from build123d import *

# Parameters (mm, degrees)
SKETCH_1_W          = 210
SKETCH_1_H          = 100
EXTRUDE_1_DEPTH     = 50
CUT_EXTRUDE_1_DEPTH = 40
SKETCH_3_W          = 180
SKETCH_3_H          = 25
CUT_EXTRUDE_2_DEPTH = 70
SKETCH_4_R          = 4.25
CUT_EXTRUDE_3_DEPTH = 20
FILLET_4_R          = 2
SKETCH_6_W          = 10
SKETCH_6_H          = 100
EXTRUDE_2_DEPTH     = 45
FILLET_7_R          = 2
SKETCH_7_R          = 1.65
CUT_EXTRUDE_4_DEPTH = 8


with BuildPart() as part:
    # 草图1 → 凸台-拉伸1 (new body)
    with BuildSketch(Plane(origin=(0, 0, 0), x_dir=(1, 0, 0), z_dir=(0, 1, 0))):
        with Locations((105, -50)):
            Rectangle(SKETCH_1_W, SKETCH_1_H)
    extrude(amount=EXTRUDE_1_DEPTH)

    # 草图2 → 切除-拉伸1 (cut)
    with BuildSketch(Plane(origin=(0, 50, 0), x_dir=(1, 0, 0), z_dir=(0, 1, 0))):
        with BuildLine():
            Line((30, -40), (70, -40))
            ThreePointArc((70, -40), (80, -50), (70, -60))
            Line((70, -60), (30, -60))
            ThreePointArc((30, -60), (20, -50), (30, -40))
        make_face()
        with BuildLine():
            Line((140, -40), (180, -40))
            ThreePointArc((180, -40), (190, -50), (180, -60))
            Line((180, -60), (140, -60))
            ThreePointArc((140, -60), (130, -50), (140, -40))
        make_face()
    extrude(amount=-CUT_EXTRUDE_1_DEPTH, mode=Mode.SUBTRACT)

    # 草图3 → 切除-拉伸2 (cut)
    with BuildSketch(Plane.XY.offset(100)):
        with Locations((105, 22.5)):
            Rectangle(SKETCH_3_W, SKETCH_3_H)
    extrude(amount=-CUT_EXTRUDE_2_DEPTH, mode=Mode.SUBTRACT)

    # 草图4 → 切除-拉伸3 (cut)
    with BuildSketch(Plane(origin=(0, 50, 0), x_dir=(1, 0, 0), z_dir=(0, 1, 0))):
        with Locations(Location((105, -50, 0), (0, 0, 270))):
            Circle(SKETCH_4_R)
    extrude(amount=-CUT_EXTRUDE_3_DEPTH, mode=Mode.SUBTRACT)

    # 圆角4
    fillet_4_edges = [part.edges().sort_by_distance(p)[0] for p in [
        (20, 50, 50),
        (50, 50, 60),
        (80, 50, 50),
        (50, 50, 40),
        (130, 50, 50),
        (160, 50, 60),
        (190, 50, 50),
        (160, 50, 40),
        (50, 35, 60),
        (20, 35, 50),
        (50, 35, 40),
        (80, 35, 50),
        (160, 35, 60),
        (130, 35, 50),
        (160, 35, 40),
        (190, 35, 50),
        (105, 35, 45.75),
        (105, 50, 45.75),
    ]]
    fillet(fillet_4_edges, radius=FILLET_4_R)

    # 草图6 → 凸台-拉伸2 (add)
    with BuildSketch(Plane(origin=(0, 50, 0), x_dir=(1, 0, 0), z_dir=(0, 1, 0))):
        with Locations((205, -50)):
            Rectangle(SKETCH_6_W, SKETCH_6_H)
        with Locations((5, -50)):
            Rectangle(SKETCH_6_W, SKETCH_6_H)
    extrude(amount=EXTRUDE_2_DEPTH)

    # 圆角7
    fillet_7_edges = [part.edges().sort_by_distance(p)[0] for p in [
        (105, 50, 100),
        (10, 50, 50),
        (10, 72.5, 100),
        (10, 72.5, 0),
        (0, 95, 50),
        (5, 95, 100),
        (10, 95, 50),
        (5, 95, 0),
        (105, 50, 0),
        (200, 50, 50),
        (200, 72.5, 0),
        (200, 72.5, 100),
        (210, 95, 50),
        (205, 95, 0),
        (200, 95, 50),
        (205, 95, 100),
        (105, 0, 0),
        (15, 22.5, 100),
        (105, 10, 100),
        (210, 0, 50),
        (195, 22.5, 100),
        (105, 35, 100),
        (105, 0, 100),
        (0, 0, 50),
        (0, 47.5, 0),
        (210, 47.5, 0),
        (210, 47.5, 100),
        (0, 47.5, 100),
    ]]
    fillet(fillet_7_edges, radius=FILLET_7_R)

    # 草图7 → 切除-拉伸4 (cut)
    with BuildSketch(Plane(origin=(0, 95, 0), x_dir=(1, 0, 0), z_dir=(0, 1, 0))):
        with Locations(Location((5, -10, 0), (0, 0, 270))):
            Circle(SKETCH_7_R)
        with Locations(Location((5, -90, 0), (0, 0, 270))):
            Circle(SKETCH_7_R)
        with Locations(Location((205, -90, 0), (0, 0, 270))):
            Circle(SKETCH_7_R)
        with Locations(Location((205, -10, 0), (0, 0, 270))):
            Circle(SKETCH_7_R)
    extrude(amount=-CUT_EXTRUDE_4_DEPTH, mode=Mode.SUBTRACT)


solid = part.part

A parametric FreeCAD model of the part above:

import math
import FreeCAD as App
import Part
import Sketcher
Q = App.Units.Quantity


def edges_at(feature, points):
    """Names of the edges that pass closest to the given points."""
    edges = feature.Shape.Edges
    near = lambda p: min(range(len(edges)), key=lambda i: edges[i].distToShape(Part.Vertex(*p))[0])
    return sorted({f"Edge{near(p) + 1}" for p in points})


def add_polygon(sketch, points):
    """Adds a closed chain of lines whose ends are joined by coincident constraints."""
    first, n = sketch.GeometryCount, len(points)
    for a, b in zip(points, points[1:] + points[:1]):
        sketch.addGeometry(Part.LineSegment(App.Vector(*a, 0), App.Vector(*b, 0)), False)
    for i in range(n):
        sketch.addConstraint(Sketcher.Constraint("Coincident", first + i, 2, first + (i + 1) % n, 1))

doc = App.newDocument("Part")
body = doc.addObject("PartDesign::Body", "Body")

# Sketch on XZ plane
sketch1 = body.newObject("Sketcher::SketchObject", "Sketch")
sketch1.AttachmentSupport = (doc.getObject("XZ_Plane"), [""])
sketch1.MapMode = "FlatFace"
add_polygon(sketch1, [(0, 0), (0, 100), (210, 100), (210, 0)])  # lines 0-3
sketch1.addConstraint(Sketcher.Constraint("Vertical", 0))
sketch1.addConstraint(Sketcher.Constraint("Horizontal", 1))
sketch1.addConstraint(Sketcher.Constraint("Vertical", 2))
sketch1.addConstraint(Sketcher.Constraint("Horizontal", 3))
sketch1.addConstraint(Sketcher.Constraint("Coincident", 3, 2, -1, 1))
sketch1.addConstraint(Sketcher.Constraint("DistanceX", 1, 1, 1, 2, Q("210 mm")))
sketch1.addConstraint(Sketcher.Constraint("DistanceY", 0, 1, 0, 2, Q("100 mm")))
pad1 = body.newObject("PartDesign::Pad", "Pad")
pad1.Profile = sketch1
pad1.Length = 50
pad1.Reversed = True

# Sketch on XZ plane
sketch2 = body.newObject("Sketcher::SketchObject", "Sketch001")
sketch2.AttachmentSupport = (doc.getObject("XZ_Plane"), [""])
sketch2.MapMode = "FlatFace"
sketch2.AttachmentOffset = App.Placement(App.Vector(0, 0, -50), App.Rotation())
sketch2.addGeometry(Part.LineSegment(App.Vector(70, 40, 0), App.Vector(30, 40, 0)), False)
sketch2.addGeometry(Part.ArcOfCircle(Part.Circle(App.Vector(30, 50, 0), App.Vector(0, 0, 1), 10), math.radians(90), math.radians(270)), False)
sketch2.addGeometry(Part.LineSegment(App.Vector(30, 60, 0), App.Vector(70, 60, 0)), False)
sketch2.addGeometry(Part.ArcOfCircle(Part.Circle(App.Vector(70, 50, 0), App.Vector(0, 0, 1), 10), math.radians(-90), math.radians(90)), False)
sketch2.addGeometry(Part.LineSegment(App.Vector(180, 40, 0), App.Vector(140, 40, 0)), False)
sketch2.addGeometry(Part.ArcOfCircle(Part.Circle(App.Vector(140, 50, 0), App.Vector(0, 0, 1), 10), math.radians(90), math.radians(270)), False)
sketch2.addGeometry(Part.LineSegment(App.Vector(140, 60, 0), App.Vector(180, 60, 0)), False)
sketch2.addGeometry(Part.ArcOfCircle(Part.Circle(App.Vector(180, 50, 0), App.Vector(0, 0, 1), 10), math.radians(-90), math.radians(90)), False)
sketch2.addConstraint(Sketcher.Constraint("Tangent", 0, 2, 1, 2))
sketch2.addConstraint(Sketcher.Constraint("Tangent", 1, 1, 2, 1))
sketch2.addConstraint(Sketcher.Constraint("Tangent", 2, 2, 3, 2))
sketch2.addConstraint(Sketcher.Constraint("Tangent", 3, 1, 0, 1))
sketch2.addConstraint(Sketcher.Constraint("Tangent", 4, 2, 5, 2))
sketch2.addConstraint(Sketcher.Constraint("Tangent", 5, 1, 6, 1))
sketch2.addConstraint(Sketcher.Constraint("Tangent", 6, 2, 7, 2))
sketch2.addConstraint(Sketcher.Constraint("Tangent", 7, 1, 4, 1))
sketch2.addConstraint(Sketcher.Constraint("Horizontal", 0))
sketch2.addConstraint(Sketcher.Constraint("Horizontal", 2))
sketch2.addConstraint(Sketcher.Constraint("Horizontal", 4))
sketch2.addConstraint(Sketcher.Constraint("Horizontal", 6))
sketch2.addConstraint(Sketcher.Constraint("Equal", 3, 5))
sketch2.addConstraint(Sketcher.Constraint("Horizontal", 3, 3, 5, 3))
sketch2.addConstraint(Sketcher.Constraint("Equal", 2, 4))
sketch2.addConstraint(Sketcher.Constraint("Radius", 1, Q("10 mm")))
sketch2.addConstraint(Sketcher.Constraint("DistanceX", 0, 2, 0, 1, Q("40 mm")))
sketch2.addConstraint(Sketcher.Constraint("DistanceX", -1, 1, 1, 3, Q("30 mm")))
sketch2.addConstraint(Sketcher.Constraint("DistanceY", -1, 1, 1, 3, Q("50 mm")))
sketch2.addConstraint(Sketcher.Constraint("DistanceX", -1, 1, 5, 3, Q("140 mm")))
pocket1 = body.newObject("PartDesign::Pocket", "Pocket")
pocket1.Profile = sketch2
pocket1.Length = 40
pocket1.Reversed = True

# Sketch on XY plane
sketch3 = body.newObject("Sketcher::SketchObject", "Sketch002")
sketch3.AttachmentSupport = (doc.getObject("XY_Plane"), [""])
sketch3.MapMode = "FlatFace"
sketch3.AttachmentOffset = App.Placement(App.Vector(0, 0, 100), App.Rotation())
add_polygon(sketch3, [(15, 35), (15, 10), (195, 10), (195, 35)])  # lines 0-3
sketch3.addConstraint(Sketcher.Constraint("Vertical", 0))
sketch3.addConstraint(Sketcher.Constraint("Horizontal", 1))
sketch3.addConstraint(Sketcher.Constraint("Vertical", 2))
sketch3.addConstraint(Sketcher.Constraint("Horizontal", 3))
sketch3.addConstraint(Sketcher.Constraint("DistanceX", 1, 1, 1, 2, Q("180 mm")))
sketch3.addConstraint(Sketcher.Constraint("DistanceY", 0, 2, 0, 1, Q("25 mm")))
sketch3.addConstraint(Sketcher.Constraint("DistanceX", -1, 1, 0, 2, Q("15 mm")))
sketch3.addConstraint(Sketcher.Constraint("DistanceY", -1, 1, 0, 2, Q("10 mm")))
pocket2 = body.newObject("PartDesign::Pocket", "Pocket001")
pocket2.Profile = sketch3
pocket2.Length = 70

# Sketch on XZ plane
sketch4 = body.newObject("Sketcher::SketchObject", "Sketch003")
sketch4.AttachmentSupport = (doc.getObject("XZ_Plane"), [""])
sketch4.MapMode = "FlatFace"
sketch4.AttachmentOffset = App.Placement(App.Vector(0, 0, -50), App.Rotation())
sketch4.addGeometry(Part.Circle(App.Vector(105, 50, 0), App.Vector(0, 0, 1), 4.2), False)
sketch4.addConstraint(Sketcher.Constraint("Diameter", 0, Q("8.5 mm")))
sketch4.addConstraint(Sketcher.Constraint("DistanceX", -1, 1, 0, 3, Q("105 mm")))
sketch4.addConstraint(Sketcher.Constraint("DistanceY", -1, 1, 0, 3, Q("50 mm")))
pocket3 = body.newObject("PartDesign::Pocket", "Pocket002")
pocket3.Profile = sketch4
pocket3.Length = 20
pocket3.Reversed = True
doc.recompute()

fillet = body.newObject("PartDesign::Fillet", "Fillet")
fillet.Base = (pocket3, edges_at(pocket3, [
    (20, 50, 50),
    (50, 50, 60),
    (80, 50, 50),
    (50, 50, 40),
    (130, 50, 50),
    (160, 50, 60),
    (190, 50, 50),
    (160, 50, 40),
    (50, 35, 60),
    (20, 35, 50),
    (50, 35, 40),
    (80, 35, 50),
    (160, 35, 60),
    (130, 35, 50),
    (160, 35, 40),
    (190, 35, 50),
    (105, 35, 45.75),
    (105, 50, 45.75),
]))
fillet.Radius = 2

# Sketch on XZ plane
sketch5 = body.newObject("Sketcher::SketchObject", "Sketch004")
sketch5.AttachmentSupport = (doc.getObject("XZ_Plane"), [""])
sketch5.MapMode = "FlatFace"
sketch5.AttachmentOffset = App.Placement(App.Vector(0, 0, -50), App.Rotation())
add_polygon(sketch5, [(200, 0), (200, 100), (210, 100), (210, 0)])  # lines 0-3
add_polygon(sketch5, [(0, 0), (0, 100), (10, 100), (10, 0)])  # lines 4-7
sketch5.addConstraint(Sketcher.Constraint("Vertical", 0))
sketch5.addConstraint(Sketcher.Constraint("Horizontal", 1))
sketch5.addConstraint(Sketcher.Constraint("Vertical", 2))
sketch5.addConstraint(Sketcher.Constraint("Horizontal", 3))
sketch5.addConstraint(Sketcher.Constraint("Vertical", 4))
sketch5.addConstraint(Sketcher.Constraint("Horizontal", 5))
sketch5.addConstraint(Sketcher.Constraint("Vertical", 6))
sketch5.addConstraint(Sketcher.Constraint("Horizontal", 7))
sketch5.addConstraint(Sketcher.Constraint("Coincident", 7, 2, -1, 1))
sketch5.addConstraint(Sketcher.Constraint("PointOnObject", 2, 2, -1))
sketch5.addConstraint(Sketcher.Constraint("Horizontal", 1, 2, 4, 2))
sketch5.addConstraint(Sketcher.Constraint("Equal", 3, 5))
sketch5.addConstraint(Sketcher.Constraint("DistanceX", 1, 1, 1, 2, Q("10 mm")))
sketch5.addConstraint(Sketcher.Constraint("DistanceY", 0, 1, 0, 2, Q("100 mm")))
sketch5.addConstraint(Sketcher.Constraint("DistanceX", -1, 1, 0, 2, Q("200 mm")))
pad2 = body.newObject("PartDesign::Pad", "Pad001")
pad2.Profile = sketch5
pad2.Length = 45
pad2.Reversed = True
doc.recompute()

fillet2 = body.newObject("PartDesign::Fillet", "Fillet001")
fillet2.Base = (pad2, edges_at(pad2, [
    (105, 50, 100),
    (10, 50, 50),
    (10, 72.5, 100),
    (10, 72.5, 0),
    (0, 95, 50),
    (5, 95, 100),
    (10, 95, 50),
    (5, 95, 0),
    (105, 50, 0),
    (200, 50, 50),
    (200, 72.5, 0),
    (200, 72.5, 100),
    (210, 95, 50),
    (205, 95, 0),
    (200, 95, 50),
    (205, 95, 100),
    (105, 0, 0),
    (15, 22.5, 100),
    (105, 10, 100),
    (210, 0, 50),
    (195, 22.5, 100),
    (105, 35, 100),
    (105, 0, 100),
    (0, 0, 50),
    (0, 47.5, 0),
    (210, 47.5, 0),
    (210, 47.5, 100),
    (0, 47.5, 100),
]))
fillet2.Radius = 2

# Sketch on XZ plane
sketch6 = body.newObject("Sketcher::SketchObject", "Sketch005")
sketch6.AttachmentSupport = (doc.getObject("XZ_Plane"), [""])
sketch6.MapMode = "FlatFace"
sketch6.AttachmentOffset = App.Placement(App.Vector(0, 0, -95), App.Rotation())
sketch6.addGeometry(Part.Circle(App.Vector(5, 10, 0), App.Vector(0, 0, 1), 1.6), False)
sketch6.addGeometry(Part.Circle(App.Vector(5, 90, 0), App.Vector(0, 0, 1), 1.6), False)
sketch6.addGeometry(Part.Circle(App.Vector(205, 90, 0), App.Vector(0, 0, 1), 1.6), False)
sketch6.addGeometry(Part.Circle(App.Vector(205, 10, 0), App.Vector(0, 0, 1), 1.6), False)
sketch6.addConstraint(Sketcher.Constraint("Equal", 0, 1))
sketch6.addConstraint(Sketcher.Constraint("Equal", 1, 2))
sketch6.addConstraint(Sketcher.Constraint("Equal", 2, 3))
sketch6.addConstraint(Sketcher.Constraint("Horizontal", 1, 3, 2, 3))
sketch6.addConstraint(Sketcher.Constraint("Horizontal", 0, 3, 3, 3))
sketch6.addConstraint(Sketcher.Constraint("Vertical", 0, 3, 1, 3))
sketch6.addConstraint(Sketcher.Constraint("Vertical", 2, 3, 3, 3))
sketch6.addConstraint(Sketcher.Constraint("Diameter", 0, Q("3.3 mm")))
sketch6.addConstraint(Sketcher.Constraint("DistanceX", -1, 1, 0, 3, Q("5 mm")))
sketch6.addConstraint(Sketcher.Constraint("DistanceY", -1, 1, 0, 3, Q("10 mm")))
sketch6.addConstraint(Sketcher.Constraint("DistanceY", -1, 1, 1, 3, Q("90 mm")))
sketch6.addConstraint(Sketcher.Constraint("DistanceX", -1, 1, 2, 3, Q("205 mm")))
pocket4 = body.newObject("PartDesign::Pocket", "Pocket003")
pocket4.Profile = sketch6
pocket4.Length = 8
pocket4.Reversed = True

doc.recompute()
